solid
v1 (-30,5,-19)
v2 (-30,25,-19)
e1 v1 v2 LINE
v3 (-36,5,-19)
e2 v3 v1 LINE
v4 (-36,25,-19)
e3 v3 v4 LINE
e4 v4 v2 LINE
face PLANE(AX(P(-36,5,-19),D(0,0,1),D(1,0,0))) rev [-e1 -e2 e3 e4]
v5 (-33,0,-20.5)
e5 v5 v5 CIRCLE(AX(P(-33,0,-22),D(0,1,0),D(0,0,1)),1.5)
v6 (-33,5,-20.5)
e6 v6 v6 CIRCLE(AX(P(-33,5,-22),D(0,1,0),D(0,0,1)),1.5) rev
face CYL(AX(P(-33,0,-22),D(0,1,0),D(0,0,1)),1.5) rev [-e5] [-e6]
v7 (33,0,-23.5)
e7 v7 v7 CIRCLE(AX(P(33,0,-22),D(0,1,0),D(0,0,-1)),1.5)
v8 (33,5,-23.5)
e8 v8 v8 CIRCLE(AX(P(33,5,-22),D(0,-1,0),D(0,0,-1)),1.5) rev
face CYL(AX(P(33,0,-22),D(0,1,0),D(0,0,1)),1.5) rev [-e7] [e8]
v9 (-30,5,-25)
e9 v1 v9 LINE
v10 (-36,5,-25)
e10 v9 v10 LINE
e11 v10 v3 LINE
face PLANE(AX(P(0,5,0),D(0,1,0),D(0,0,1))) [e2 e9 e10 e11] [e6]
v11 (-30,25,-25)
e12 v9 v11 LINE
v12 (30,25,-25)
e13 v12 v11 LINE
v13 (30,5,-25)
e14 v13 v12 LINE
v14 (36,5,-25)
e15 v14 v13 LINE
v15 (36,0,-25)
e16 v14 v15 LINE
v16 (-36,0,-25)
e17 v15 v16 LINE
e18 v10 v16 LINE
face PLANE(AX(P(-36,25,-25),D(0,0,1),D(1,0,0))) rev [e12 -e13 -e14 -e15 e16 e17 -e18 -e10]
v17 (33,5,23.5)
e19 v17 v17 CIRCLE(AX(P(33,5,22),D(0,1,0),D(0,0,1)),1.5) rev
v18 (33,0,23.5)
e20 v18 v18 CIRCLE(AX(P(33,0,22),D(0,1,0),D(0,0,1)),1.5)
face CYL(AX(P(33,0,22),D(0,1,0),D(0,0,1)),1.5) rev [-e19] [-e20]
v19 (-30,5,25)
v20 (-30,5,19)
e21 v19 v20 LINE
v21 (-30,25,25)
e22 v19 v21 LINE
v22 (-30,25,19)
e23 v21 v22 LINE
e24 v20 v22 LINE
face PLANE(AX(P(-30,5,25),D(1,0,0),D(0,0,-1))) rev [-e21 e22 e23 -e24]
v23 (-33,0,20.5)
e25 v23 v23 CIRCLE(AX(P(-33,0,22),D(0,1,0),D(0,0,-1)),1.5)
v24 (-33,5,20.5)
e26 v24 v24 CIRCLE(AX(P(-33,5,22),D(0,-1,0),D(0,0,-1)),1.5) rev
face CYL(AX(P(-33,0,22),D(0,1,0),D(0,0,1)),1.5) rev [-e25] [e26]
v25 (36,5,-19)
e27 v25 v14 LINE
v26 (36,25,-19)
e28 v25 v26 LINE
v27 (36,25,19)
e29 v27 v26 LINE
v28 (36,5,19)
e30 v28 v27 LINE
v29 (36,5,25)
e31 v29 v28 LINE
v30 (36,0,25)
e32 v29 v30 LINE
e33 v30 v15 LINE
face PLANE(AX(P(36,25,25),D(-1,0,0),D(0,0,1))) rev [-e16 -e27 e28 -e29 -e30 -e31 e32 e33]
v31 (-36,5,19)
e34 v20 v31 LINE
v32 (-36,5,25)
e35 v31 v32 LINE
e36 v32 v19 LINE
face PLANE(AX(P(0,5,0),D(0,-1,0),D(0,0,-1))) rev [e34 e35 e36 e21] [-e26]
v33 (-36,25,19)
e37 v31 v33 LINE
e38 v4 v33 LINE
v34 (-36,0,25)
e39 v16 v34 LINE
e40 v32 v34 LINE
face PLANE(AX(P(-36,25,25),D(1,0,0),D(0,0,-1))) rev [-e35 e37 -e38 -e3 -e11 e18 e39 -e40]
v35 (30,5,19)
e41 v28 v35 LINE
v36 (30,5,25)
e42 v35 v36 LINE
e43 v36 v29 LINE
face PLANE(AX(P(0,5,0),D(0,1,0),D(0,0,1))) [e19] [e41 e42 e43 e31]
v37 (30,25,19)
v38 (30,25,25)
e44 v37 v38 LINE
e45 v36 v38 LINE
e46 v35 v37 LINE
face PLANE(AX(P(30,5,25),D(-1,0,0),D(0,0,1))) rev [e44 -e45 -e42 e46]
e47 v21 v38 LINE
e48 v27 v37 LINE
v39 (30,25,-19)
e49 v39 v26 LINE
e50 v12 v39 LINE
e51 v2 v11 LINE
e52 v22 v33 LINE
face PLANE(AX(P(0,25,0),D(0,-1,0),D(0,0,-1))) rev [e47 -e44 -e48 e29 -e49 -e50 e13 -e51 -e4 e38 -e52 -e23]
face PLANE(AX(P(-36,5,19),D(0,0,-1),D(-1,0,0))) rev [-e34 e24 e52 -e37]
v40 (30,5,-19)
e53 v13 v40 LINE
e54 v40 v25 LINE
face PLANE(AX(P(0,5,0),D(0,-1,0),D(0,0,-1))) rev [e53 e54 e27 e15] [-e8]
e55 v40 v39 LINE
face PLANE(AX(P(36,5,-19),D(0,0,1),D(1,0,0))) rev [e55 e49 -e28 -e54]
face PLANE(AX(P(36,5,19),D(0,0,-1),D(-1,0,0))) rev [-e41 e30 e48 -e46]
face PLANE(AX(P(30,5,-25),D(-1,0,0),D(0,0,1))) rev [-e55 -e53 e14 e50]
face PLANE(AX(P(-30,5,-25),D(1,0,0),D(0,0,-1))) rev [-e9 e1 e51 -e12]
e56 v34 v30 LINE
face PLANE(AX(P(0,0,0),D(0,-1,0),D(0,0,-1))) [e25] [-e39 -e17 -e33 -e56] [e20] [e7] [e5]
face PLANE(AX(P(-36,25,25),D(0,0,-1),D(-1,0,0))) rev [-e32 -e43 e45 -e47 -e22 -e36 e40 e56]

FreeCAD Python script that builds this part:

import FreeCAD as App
import Part
import Sketcher

V = App.Vector


def add_polygon(sketch, points):
    """Adds a closed chain of lines whose ends are joined by coincident constraints."""
    first, n = sketch.GeometryCount, len(points)
    for a, b in zip(points, points[1:] + points[:1]):
        sketch.addGeometry(Part.LineSegment(App.Vector(*a, 0), App.Vector(*b, 0)), False)
    for i in range(n):
        sketch.addConstraint(Sketcher.Constraint("Coincident", first + i, 2, first + (i + 1) % n, 1))

doc = App.newDocument("Part")
body = doc.addObject("PartDesign::Body", "Body")

sketch1 = body.newObject("Sketcher::SketchObject", "Sketch")
sketch1.AttachmentSupport = (doc.getObject("XZ_Plane"), [""])
sketch1.MapMode = "FlatFace"
add_polygon(sketch1, [(-36, -25), (-36, 25), (36, 25), (36, -25)])
sketch1.addConstraint([
    Sketcher.Constraint("Vertical", 0),
    Sketcher.Constraint("Horizontal", 1),
    Sketcher.Constraint("Vertical", 2),
    Sketcher.Constraint("Horizontal", 3),
    Sketcher.Constraint("Symmetric", 0, 2, 2, 2, -1, 1),
    Sketcher.Constraint("DistanceX", 1, 1, 1, 2, 72.0),
    Sketcher.Constraint("DistanceY", 0, 1, 0, 2, 50.0),
])
pad1 = body.newObject("PartDesign::Pad", "Pad")
pad1.Profile = sketch1
pad1.Length = 25
pad1.Reversed = True

sketch2 = body.newObject("Sketcher::SketchObject", "Sketch001")
sketch2.AttachmentSupport = (doc.getObject("XZ_Plane"), [""])
sketch2.MapMode = "FlatFace"
sketch2.AttachmentOffset = App.Placement(V(0, 0, -25), App.Rotation())
sketch2.addGeometry([
    Part.Circle(V(-33, -22, 0), V(0, 0, 1), 1.5),
    Part.Circle(V(33, -22, 0), V(0, 0, 1), 1.5),
    Part.Circle(V(33, 22, 0), V(0, 0, 1), 1.5),
    Part.Circle(V(-33, 22, 0), V(0, 0, 1), 1.5),
], False)
sketch2.addConstraint([
    Sketcher.Constraint("Equal", 0, 1),
    Sketcher.Constraint("Equal", 1, 2),
    Sketcher.Constraint("Equal", 2, 3),
    Sketcher.Constraint("Symmetric", 0, 3, 2, 3, -1, 1),
    Sketcher.Constraint("Symmetric", 1, 3, 3, 3, -1, 1),
    Sketcher.Constraint("Symmetric", 0, 3, 1, 3, -2),
    Sketcher.Constraint("Diameter", 0, 3.0),
    Sketcher.Constraint("DistanceX", 0, 3, -1, 1, 33.0),
    Sketcher.Constraint("DistanceY", 0, 3, -1, 1, 22.0),
])
pocket1 = body.newObject("PartDesign::Pocket", "Pocket")
pocket1.Profile = sketch2
pocket1.Type = "ThroughAll"
pocket1.Reversed = True

sketch3 = body.newObject("Sketcher::SketchObject", "Sketch002")
sketch3.AttachmentSupport = (doc.getObject("XZ_Plane"), [""])
sketch3.MapMode = "FlatFace"
sketch3.AttachmentOffset = App.Placement(V(0, 0, -25), App.Rotation())
add_polygon(sketch3, [(-36, -25), (-36, -19), (-30, -19), (-30, -25)])
add_polygon(sketch3, [(30, -25), (30, -19), (36, -19), (36, -25)])
add_polygon(sketch3, [(30, 19), (30, 25), (36, 25), (36, 19)])
add_polygon(sketch3, [(-36, 19), (-36, 25), (-30, 25), (-30, 19)])
sketch3.addConstraint([
    Sketcher.Constraint("Vertical", 0),
    Sketcher.Constraint("Horizontal", 1),
    Sketcher.Constraint("Vertical", 2),
    Sketcher.Constraint("Horizontal", 3),
    Sketcher.Constraint("Vertical", 4),
    Sketcher.Constraint("Horizontal", 5),
    Sketcher.Constraint("Vertical", 6),
    Sketcher.Constraint("Horizontal", 7),
    Sketcher.Constraint("Vertical", 8),
    Sketcher.Constraint("Horizontal", 9),
    Sketcher.Constraint("Vertical", 10),
    Sketcher.Constraint("Horizontal", 11),
    Sketcher.Constraint("Vertical", 12),
    Sketcher.Constraint("Horizontal", 13),
    Sketcher.Constraint("Vertical", 14),
    Sketcher.Constraint("Horizontal", 15),
    Sketcher.Constraint("Symmetric", 2, 2, 8, 2, -1, 1),
    Sketcher.Constraint("Symmetric", 0, 2, 10, 2, -1, 1),
    Sketcher.Constraint("Symmetric", 6, 2, 12, 2, -1, 1),
    Sketcher.Constraint("Symmetric", 4, 2, 14, 2, -1, 1),
    Sketcher.Constraint("Symmetric", 1, 2, 4, 2, -2),
    Sketcher.Constraint("Symmetric", 3, 2, 6, 2, -2),
    Sketcher.Constraint("Equal", 15, 0),
    Sketcher.Constraint("DistanceX", 1, 1, 1, 2, 6.0),
    Sketcher.Constraint("DistanceX", 0, 2, -1, 1, 36.0),
    Sketcher.Constraint("DistanceY", 0, 2, -1, 1, 19.0),
])
pocket2 = body.newObject("PartDesign::Pocket", "Pocket001")
pocket2.Profile = sketch3
pocket2.Length = 20
pocket2.Reversed = True

doc.recompute()
